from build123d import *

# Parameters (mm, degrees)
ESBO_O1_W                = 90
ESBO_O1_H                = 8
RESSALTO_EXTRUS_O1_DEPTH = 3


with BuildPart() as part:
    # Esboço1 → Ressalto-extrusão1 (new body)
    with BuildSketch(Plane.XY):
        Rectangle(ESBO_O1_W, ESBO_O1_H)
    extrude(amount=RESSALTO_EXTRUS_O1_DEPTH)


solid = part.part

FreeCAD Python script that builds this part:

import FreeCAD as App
import Part
import Sketcher
Q = App.Units.Quantity


def add_polygon(sketch, points):
    """Adds a closed chain of lines whose ends are joined by coincident constraints."""
    first, n = sketch.GeometryCount, len(points)
    for a, b in zip(points, points[1:] + points[:1]):
        sketch.addGeometry(Part.LineSegment(App.Vector(*a, 0), App.Vector(*b, 0)), False)
    for i in range(n):
        sketch.addConstraint(Sketcher.Constraint("Coincident", first + i, 2, first + (i + 1) % n, 1))

doc = App.newDocument("Part")
body = doc.addObject("PartDesign::Body", "Body")

# Sketch on XY plane
sketch1 = doc.addObject("Sketcher::SketchObject", "Sketch")
body.addObject(sketch1)
sketch1.AttachmentSupport = (doc.XY_Plane, [""])
sketch1.MapMode = "FlatFace"
add_polygon(sketch1, [(-45, 4), (-45, -4), (45, -4), (45, 4)])  # lines 0-3
sketch1.addConstraint([
    Sketcher.Constraint("Vertical", 0),
    Sketcher.Constraint("Horizontal", 1),
    Sketcher.Constraint("Vertical", 2),
    Sketcher.Constraint("Horizontal", 3),
    Sketcher.Constraint("Symmetric", 0, 2, 2, 2, -1, 1),
    Sketcher.Constraint("DistanceX", 1, 1, 1, 2, Q("90 mm")),
    Sketcher.Constraint("DistanceY", 0, 2, 0, 1, Q("8 mm")),
])
pad1 = doc.addObject("PartDesign::Pad", "Pad")
body.addObject(pad1)
pad1.Profile = sketch1
pad1.Length = 3

doc.recompute()
